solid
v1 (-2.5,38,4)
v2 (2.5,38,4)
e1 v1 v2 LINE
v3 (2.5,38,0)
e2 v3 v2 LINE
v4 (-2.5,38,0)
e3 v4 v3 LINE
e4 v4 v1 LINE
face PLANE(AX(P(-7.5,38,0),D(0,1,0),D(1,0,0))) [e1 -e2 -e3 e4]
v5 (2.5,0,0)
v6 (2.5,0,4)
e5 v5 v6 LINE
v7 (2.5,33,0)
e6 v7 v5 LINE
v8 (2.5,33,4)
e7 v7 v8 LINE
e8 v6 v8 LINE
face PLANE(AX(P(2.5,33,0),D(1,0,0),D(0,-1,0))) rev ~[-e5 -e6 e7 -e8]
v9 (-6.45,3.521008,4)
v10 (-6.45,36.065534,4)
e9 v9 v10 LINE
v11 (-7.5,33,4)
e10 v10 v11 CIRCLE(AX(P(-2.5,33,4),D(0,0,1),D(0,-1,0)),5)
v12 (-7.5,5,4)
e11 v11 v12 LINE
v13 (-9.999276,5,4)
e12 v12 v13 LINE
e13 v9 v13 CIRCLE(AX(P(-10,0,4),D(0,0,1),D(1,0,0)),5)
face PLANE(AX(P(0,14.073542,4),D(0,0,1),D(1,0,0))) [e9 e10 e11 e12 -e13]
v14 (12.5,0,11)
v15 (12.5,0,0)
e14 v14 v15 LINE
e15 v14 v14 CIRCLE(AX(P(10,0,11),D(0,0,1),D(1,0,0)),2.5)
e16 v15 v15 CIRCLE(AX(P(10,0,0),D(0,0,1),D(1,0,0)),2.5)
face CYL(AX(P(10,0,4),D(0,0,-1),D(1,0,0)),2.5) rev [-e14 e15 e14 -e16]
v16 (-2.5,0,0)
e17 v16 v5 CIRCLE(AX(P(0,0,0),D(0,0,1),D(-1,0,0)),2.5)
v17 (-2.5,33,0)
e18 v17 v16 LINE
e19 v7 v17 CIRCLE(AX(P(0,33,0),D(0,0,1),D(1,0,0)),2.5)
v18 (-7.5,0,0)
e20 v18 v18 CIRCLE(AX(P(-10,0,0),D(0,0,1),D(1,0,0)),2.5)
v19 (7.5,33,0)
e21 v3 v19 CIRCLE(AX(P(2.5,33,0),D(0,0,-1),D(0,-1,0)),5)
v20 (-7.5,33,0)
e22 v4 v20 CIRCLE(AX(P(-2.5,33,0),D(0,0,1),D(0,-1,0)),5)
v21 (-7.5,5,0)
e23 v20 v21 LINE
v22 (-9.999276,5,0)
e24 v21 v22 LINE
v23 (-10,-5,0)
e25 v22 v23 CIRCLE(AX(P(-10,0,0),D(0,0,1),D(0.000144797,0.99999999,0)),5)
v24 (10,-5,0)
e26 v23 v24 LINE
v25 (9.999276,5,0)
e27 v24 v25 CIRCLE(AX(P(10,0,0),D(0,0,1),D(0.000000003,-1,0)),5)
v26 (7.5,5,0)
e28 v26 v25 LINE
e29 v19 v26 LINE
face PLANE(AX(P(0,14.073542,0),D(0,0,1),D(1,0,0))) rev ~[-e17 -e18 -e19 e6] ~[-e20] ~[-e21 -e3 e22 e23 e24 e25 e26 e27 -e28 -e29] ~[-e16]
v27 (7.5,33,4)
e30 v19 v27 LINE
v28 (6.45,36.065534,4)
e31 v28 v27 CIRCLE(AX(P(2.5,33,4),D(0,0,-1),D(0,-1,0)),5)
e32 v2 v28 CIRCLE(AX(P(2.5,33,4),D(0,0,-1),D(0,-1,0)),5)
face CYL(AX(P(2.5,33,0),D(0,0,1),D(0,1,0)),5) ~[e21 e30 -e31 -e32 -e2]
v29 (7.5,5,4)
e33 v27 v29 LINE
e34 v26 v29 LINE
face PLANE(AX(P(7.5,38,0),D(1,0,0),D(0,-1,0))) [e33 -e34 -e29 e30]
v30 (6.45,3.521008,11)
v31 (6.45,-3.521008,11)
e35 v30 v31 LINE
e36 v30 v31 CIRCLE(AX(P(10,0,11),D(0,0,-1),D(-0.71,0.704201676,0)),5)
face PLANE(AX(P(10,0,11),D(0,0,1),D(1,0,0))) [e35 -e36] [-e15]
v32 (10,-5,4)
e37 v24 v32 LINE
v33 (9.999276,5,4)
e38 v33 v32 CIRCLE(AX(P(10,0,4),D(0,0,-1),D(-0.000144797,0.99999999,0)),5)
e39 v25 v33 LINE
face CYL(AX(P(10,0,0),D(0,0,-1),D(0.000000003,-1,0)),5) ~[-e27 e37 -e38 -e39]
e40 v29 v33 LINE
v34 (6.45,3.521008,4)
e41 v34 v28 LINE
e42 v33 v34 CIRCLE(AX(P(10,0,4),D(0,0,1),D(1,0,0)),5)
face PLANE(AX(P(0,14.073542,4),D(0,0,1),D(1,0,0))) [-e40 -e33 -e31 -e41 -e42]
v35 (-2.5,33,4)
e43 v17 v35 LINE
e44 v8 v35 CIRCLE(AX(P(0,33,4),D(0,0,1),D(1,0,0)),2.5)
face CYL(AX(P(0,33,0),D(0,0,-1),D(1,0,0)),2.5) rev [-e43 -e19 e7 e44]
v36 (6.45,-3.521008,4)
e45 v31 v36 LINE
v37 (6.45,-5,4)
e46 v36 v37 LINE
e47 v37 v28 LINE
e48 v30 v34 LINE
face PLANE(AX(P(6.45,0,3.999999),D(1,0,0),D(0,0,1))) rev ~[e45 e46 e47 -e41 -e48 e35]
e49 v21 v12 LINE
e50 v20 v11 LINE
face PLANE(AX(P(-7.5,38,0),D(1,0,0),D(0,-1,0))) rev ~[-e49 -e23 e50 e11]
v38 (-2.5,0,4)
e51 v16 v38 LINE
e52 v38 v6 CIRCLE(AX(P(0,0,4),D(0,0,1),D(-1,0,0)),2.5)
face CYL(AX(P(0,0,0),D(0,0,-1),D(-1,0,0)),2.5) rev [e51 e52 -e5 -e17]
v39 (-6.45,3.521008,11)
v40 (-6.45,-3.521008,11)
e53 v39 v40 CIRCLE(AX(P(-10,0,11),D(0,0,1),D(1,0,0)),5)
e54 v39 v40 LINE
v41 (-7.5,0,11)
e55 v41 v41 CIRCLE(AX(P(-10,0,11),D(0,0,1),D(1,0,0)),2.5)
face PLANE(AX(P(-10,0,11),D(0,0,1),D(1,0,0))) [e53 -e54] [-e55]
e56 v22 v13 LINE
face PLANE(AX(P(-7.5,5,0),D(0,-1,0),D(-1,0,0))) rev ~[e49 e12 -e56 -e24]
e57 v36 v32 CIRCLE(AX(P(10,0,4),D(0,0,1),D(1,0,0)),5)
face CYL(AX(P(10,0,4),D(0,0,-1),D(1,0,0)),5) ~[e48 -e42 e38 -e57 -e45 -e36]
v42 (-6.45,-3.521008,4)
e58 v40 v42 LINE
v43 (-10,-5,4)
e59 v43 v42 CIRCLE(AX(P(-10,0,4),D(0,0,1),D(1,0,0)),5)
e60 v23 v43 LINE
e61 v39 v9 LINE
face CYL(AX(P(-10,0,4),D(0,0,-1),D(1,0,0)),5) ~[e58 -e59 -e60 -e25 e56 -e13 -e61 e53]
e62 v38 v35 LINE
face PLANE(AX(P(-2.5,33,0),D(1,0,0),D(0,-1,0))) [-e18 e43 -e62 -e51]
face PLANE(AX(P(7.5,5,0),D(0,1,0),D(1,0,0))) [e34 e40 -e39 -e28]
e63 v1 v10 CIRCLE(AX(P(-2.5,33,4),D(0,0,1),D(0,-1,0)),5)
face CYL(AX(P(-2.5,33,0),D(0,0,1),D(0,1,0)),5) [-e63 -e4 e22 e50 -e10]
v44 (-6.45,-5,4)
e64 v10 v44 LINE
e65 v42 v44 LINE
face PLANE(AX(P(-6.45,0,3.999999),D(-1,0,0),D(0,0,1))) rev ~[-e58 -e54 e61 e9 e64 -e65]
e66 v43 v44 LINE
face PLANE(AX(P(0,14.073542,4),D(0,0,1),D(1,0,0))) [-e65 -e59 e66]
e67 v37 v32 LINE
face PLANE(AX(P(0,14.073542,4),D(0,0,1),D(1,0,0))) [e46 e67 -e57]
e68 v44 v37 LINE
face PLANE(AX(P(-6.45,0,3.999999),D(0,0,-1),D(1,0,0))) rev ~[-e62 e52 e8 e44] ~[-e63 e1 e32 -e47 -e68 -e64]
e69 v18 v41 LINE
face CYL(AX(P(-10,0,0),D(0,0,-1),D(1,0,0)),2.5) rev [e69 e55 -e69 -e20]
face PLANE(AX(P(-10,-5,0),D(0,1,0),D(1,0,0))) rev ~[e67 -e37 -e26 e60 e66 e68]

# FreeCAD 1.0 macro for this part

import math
import FreeCAD as App
import Part
import Sketcher

V = App.Vector
Q = App.Units.Quantity


def edges_at(feature, points):
    """Names of the edges that pass closest to the given points."""
    edges = feature.Shape.Edges
    near = lambda p: min(range(len(edges)), key=lambda i: edges[i].distToShape(Part.Vertex(*p))[0])
    return sorted({f"Edge{near(p) + 1}" for p in points})

doc = App.newDocument("Part")
params = doc.addObject("Spreadsheet::Sheet", "Params")
for row, (alias, value) in enumerate([
    ("sketch1_diameter", "5 mm"),
    ("sketch1_radius", "5 mm"),
    ("sketch1_width", "20 mm"),
    ("sketch1_width2", "15 mm"),
    ("sketch1_height", "33 mm"),
    ("pad1_length", "4 mm"),
    ("sketch2_diameter", "10 mm"),
    ("sketch2_diameter2", "5 mm"),
    ("pad2_length", "7 mm"),
    ("fillet_radius", "5 mm"),
    ("sketch3_width", "12.9 mm"),
], start=1):
    params.set(f"A{row}", alias)
    params.set(f"B{row}", "=" + value)
    params.setAlias(f"B{row}", alias)

body = doc.addObject("PartDesign::Body", "Body")

sketch1 = body.newObject("Sketcher::SketchObject", "Sketch")
sketch1.AttachmentSupport = (doc.getObject("XY_Plane"), [""])
sketch1.MapMode = "FlatFace"
sketch1.addGeometry([
    Part.LineSegment(V(-10, -5, 0), V(10, -5, 0)),
    Part.ArcOfCircle(Part.Circle(V(10, 0, 0), V(0, 0, 1), 5), math.radians(-90), math.radians(90)),
    Part.LineSegment(V(10, 5, 0), V(7.5, 5, 0)),
    Part.LineSegment(V(7.5, 5, 0), V(7.5, 38, 0)),
    Part.LineSegment(V(7.5, 38, 0), V(-7.5, 38, 0)),
    Part.LineSegment(V(-7.5, 38, 0), V(-7.5, 5, 0)),
    Part.LineSegment(V(-7.5, 5, 0), V(-10, 5, 0)),
    Part.ArcOfCircle(Part.Circle(V(-10, 0, 0), V(0, 0, 1), 5), math.radians(90), math.radians(270)),
    Part.Circle(V(-10, 0, 0), V(0, 0, 1), 2.5),
    Part.Circle(V(10, 0, 0), V(0, 0, 1), 2.5),
    Part.ArcOfCircle(Part.Circle(V(0, 33, 0), V(0, 0, 1), 2.5), math.radians(0), math.radians(180)),
    Part.LineSegment(V(2.5, 33, 0), V(2.5, 0, 0)),
    Part.ArcOfCircle(Part.Circle(V(0, 0, 0), V(0, 0, 1), 2.5), math.radians(180), math.radians(360)),
    Part.LineSegment(V(-2.5, 0, 0), V(-2.5, 33, 0)),
], False)
sketch1.addConstraint([
    Sketcher.Constraint("Tangent", 0, 2, 1, 1),
    Sketcher.Constraint("Coincident", 1, 2, 2, 1),
    Sketcher.Constraint("Coincident", 2, 2, 3, 1),
    Sketcher.Constraint("Coincident", 3, 2, 4, 1),
    Sketcher.Constraint("Coincident", 4, 2, 5, 1),
    Sketcher.Constraint("Coincident", 5, 2, 6, 1),
    Sketcher.Constraint("Coincident", 6, 2, 7, 1),
    Sketcher.Constraint("Tangent", 7, 2, 0, 1),
    Sketcher.Constraint("Tangent", 10, 1, 11, 1),
    Sketcher.Constraint("Tangent", 11, 2, 12, 2),
    Sketcher.Constraint("Tangent", 12, 1, 13, 1),
    Sketcher.Constraint("Tangent", 13, 2, 10, 2),
    Sketcher.Constraint("Horizontal", 0),
    Sketcher.Constraint("Horizontal", 2),
    Sketcher.Constraint("Vertical", 3),
    Sketcher.Constraint("Horizontal", 4),
    Sketcher.Constraint("Vertical", 5),
    Sketcher.Constraint("Horizontal", 6),
    Sketcher.Constraint("Vertical", 11),
    Sketcher.Constraint("Vertical", 13),
    Sketcher.Constraint("Coincident", 12, 3, -1, 1),
    Sketcher.Constraint("Coincident", 8, 3, 7, 3),
    Sketcher.Constraint("Coincident", 9, 3, 1, 3),
    Sketcher.Constraint("Equal", 1, 7),
    Sketcher.Constraint("Equal", 8, 9),
    Sketcher.Constraint("Equal", 9, 10),
    Sketcher.Constraint("Symmetric", 1, 3, 7, 3, -1, 1),
    Sketcher.Constraint("Equal", 2, 6),
    Sketcher.Constraint("Equal", 5, 11),
    Sketcher.Constraint("Diameter", 8, Q("5 mm")),
    Sketcher.Constraint("Radius", 1, Q("5 mm")),
    Sketcher.Constraint("DistanceX", 0, 1, 0, 2, Q("20 mm")),
    Sketcher.Constraint("DistanceX", 4, 2, 4, 1, Q("15 mm")),
    Sketcher.Constraint("DistanceY", 3, 1, 3, 2, Q("33 mm")),
    Sketcher.Constraint("DistanceX", 10, 1, 3, 2, Q("5 mm")),
    Sketcher.Constraint("DistanceX", 2, 2, 2, 1, Q("2.499276 mm")),
])
sketch1.setExpression("Constraints[29]", "Params.sketch1_diameter")
sketch1.setExpression("Constraints[30]", "Params.sketch1_radius")
sketch1.setExpression("Constraints[31]", "Params.sketch1_width")
sketch1.setExpression("Constraints[32]", "Params.sketch1_width2")
sketch1.setExpression("Constraints[33]", "Params.sketch1_height")
pad1 = body.newObject("PartDesign::Pad", "Pad")
pad1.Profile = sketch1
pad1.setExpression("Length", "Params.pad1_length")

sketch2 = body.newObject("Sketcher::SketchObject", "Sketch001")
sketch2.AttachmentSupport = (doc.getObject("XY_Plane"), [""])
sketch2.MapMode = "FlatFace"
sketch2.AttachmentOffset = App.Placement(V(0, 0, 4), App.Rotation())
sketch2.addGeometry([
    Part.Circle(V(10, 0, 0), V(0, 0, 1), 5),
    Part.Circle(V(10, 0, 0), V(0, 0, 1), 2.5),
    Part.Circle(V(-10, 0, 0), V(0, 0, 1), 5),
    Part.Circle(V(-10, 0, 0), V(0, 0, 1), 2.5),
], False)
sketch2.addConstraint([
    Sketcher.Constraint("Coincident", 1, 3, 0, 3),
    Sketcher.Constraint("Coincident", 3, 3, 2, 3),
    Sketcher.Constraint("Equal", 0, 2),
    Sketcher.Constraint("Equal", 1, 3),
    Sketcher.Constraint("Symmetric", 0, 3, 2, 3, -1, 1),
    Sketcher.Constraint("PointOnObject", 0, 3, -1),
    Sketcher.Constraint("Diameter", 0, Q("10 mm")),
    Sketcher.Constraint("Diameter", 1, Q("5 mm")),
    Sketcher.Constraint("DistanceX", -1, 1, 0, 3, Q("10 mm")),
])
sketch2.setExpression("Constraints[6]", "Params.sketch2_diameter")
sketch2.setExpression("Constraints[7]", "Params.sketch2_diameter2")
pad2 = body.newObject("PartDesign::Pad", "Pad001")
pad2.Profile = sketch2
pad2.setExpression("Length", "Params.pad2_length")
doc.recompute()

fillet = body.newObject("PartDesign::Fillet", "Fillet")
fillet.Base = (pad2, edges_at(pad2, [(-7.5, 38, 2), (7.5, 38, 2)]))
fillet.setExpression("Radius", "Params.fillet_radius")

sketch3 = body.newObject("Sketcher::SketchObject", "Sketch002")
sketch3.AttachmentSupport = (doc.getObject("XZ_Plane"), [""])
sketch3.MapMode = "FlatFace"
sketch3.addGeometry([
    Part.LineSegment(V(-6, 13, 0), V(-6, 4, 0)),
    Part.LineSegment(V(-6, 4, 0), V(6, 4, 0)),
    Part.LineSegment(V(6, 4, 0), V(6, 13, 0)),
    Part.LineSegment(V(6, 13, 0), V(-6, 13, 0)),
], False)
sketch3.addConstraint([
    Sketcher.Constraint("Coincident", 0, 2, 1, 1),
    Sketcher.Constraint("Coincident", 1, 2, 2, 1),
    Sketcher.Constraint("Coincident", 2, 2, 3, 1),
    Sketcher.Constraint("Coincident", 3, 2, 0, 1),
    Sketcher.Constraint("Vertical", 0),
    Sketcher.Constraint("Horizontal", 1),
    Sketcher.Constraint("Vertical", 2),
    Sketcher.Constraint("Horizontal", 3),
    Sketcher.Constraint("DistanceX", 1, 1, 1, 2, Q("12.9 mm")),
    Sketcher.Constraint("DistanceY", -1, 1, 0, 2, Q("3.999999 mm")),
    Sketcher.Constraint("DistanceX", 0, 2, -1, 1, Q("6.45 mm")),
    Sketcher.Constraint("DistanceY", 0, 2, 0, 1, Q("8.550953 mm")),
])
sketch3.setExpression("Constraints[8]", "Params.sketch3_width")
pocket1 = body.newObject("PartDesign::Pocket", "Pocket")
pocket1.Profile = sketch3
pocket1.Type = "ThroughAll"
pocket1.Midplane = True

doc.recompute()
